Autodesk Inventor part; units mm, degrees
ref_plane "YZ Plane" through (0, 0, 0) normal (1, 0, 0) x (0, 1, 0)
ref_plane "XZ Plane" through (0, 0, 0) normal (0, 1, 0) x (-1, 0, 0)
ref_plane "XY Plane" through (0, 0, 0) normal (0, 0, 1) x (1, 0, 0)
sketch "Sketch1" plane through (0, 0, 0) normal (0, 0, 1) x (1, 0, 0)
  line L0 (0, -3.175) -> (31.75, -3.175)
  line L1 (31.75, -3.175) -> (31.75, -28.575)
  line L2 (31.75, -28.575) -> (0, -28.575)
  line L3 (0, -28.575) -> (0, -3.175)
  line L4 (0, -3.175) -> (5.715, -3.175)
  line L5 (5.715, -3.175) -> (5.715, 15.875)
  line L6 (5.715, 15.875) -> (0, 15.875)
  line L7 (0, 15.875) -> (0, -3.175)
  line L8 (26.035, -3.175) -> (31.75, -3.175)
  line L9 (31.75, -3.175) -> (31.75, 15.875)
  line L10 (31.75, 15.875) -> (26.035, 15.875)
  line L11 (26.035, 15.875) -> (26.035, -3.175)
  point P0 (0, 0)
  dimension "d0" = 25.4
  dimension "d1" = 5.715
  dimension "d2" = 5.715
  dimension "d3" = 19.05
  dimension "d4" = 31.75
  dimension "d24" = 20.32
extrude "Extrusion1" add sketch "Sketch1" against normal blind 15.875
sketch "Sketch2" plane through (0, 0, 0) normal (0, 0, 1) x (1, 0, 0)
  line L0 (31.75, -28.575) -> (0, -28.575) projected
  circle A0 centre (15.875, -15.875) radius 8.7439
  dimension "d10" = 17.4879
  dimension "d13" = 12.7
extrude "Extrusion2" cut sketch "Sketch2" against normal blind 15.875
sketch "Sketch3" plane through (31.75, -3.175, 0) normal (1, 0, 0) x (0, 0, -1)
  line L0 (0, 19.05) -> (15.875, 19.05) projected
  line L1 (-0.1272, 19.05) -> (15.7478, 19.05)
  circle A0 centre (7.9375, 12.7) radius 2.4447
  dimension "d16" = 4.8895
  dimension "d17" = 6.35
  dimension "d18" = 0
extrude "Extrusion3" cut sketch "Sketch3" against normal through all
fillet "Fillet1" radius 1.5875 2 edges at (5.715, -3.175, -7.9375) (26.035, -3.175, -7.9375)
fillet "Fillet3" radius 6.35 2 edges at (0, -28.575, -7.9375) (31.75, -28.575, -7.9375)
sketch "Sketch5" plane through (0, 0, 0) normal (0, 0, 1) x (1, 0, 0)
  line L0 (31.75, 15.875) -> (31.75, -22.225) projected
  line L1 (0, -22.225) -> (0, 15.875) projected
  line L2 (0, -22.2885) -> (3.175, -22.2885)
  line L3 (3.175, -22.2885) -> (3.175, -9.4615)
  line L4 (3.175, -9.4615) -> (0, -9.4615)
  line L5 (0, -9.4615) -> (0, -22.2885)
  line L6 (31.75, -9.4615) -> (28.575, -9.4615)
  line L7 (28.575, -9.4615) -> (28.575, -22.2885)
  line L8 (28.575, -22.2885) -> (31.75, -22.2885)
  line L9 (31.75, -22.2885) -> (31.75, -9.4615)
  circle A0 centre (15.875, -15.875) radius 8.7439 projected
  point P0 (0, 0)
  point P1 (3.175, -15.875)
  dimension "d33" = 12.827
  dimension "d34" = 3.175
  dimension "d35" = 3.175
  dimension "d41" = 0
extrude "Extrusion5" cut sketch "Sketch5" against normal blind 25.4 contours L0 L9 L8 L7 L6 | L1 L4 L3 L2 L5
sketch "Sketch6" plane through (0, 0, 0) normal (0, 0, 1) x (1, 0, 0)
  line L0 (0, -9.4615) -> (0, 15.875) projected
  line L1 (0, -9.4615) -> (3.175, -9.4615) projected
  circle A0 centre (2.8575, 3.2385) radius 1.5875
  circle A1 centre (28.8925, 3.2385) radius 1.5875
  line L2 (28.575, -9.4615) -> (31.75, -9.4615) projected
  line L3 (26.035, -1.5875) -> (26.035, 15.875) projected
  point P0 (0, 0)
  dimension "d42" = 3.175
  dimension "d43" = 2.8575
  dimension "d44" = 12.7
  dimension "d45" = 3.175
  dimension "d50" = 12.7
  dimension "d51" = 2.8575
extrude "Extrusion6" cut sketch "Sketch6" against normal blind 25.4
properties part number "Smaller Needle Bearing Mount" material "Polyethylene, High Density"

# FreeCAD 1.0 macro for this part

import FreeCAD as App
import Part
import Sketcher
from FreeCAD import Vector
Q = App.Units.Quantity


def edges_at(feature, points):
    """Names of the edges that pass closest to the given points."""
    edges = feature.Shape.Edges
    near = lambda p: min(range(len(edges)), key=lambda i: edges[i].distToShape(Part.Vertex(*p))[0])
    return sorted({f"Edge{near(p) + 1}" for p in points})

doc = App.newDocument("Part")
params = doc.addObject("Spreadsheet::Sheet", "Params")
for row, (alias, value) in enumerate([
    ("sketch1_width", "0.8 in"),
    ("sketch1_width2", "1.25 in"),
    ("sketch1_height", "0.75 in"),
    ("pad1_length", "0.625 in"),
    ("pocket1_length", "0.625 in"),
    ("fillet_radius", "0.0625 in"),
    ("fillet2_radius", "0.25 in"),
    ("sketch4_width", "0.125 in"),
    ("sketch4_height", "0.505 in"),
    ("pocket3_length", "1 in"),
    ("sketch5_diameter", "0.125 in"),
    ("pocket4_length", "1 in"),
], start=1):
    params.set(f"A{row}", alias)
    params.set(f"B{row}", "=" + value)
    params.setAlias(f"B{row}", alias)

body = doc.addObject("PartDesign::Body", "Body")

# Sketch on XY plane
sketch1 = body.newObject("Sketcher::SketchObject", "Sketch")
sketch1.AttachmentSupport = (doc.getObject("XY_Plane"), [""])
sketch1.MapMode = "FlatFace"
sketch1.addGeometry([
    Part.LineSegment(Vector(0, 16, 0), Vector(0, -29, 0)),  # 0
    Part.LineSegment(Vector(0, -29, 0), Vector(32, -29, 0)),  # 1
    Part.LineSegment(Vector(32, -29, 0), Vector(32, 16, 0)),  # 2
    Part.LineSegment(Vector(32, 16, 0), Vector(26, 16, 0)),  # 3
    Part.LineSegment(Vector(26, 16, 0), Vector(26, -3, 0)),  # 4
    Part.LineSegment(Vector(26, -3, 0), Vector(6, -3, 0)),  # 5
    Part.LineSegment(Vector(6, -3, 0), Vector(6, 16, 0)),  # 6
    Part.LineSegment(Vector(6, 16, 0), Vector(0, 16, 0)),  # 7
], False)
sketch1.addConstraint([
    Sketcher.Constraint("Coincident", 0, 2, 1, 1),
    Sketcher.Constraint("Coincident", 1, 2, 2, 1),
    Sketcher.Constraint("Coincident", 2, 2, 3, 1),
    Sketcher.Constraint("Coincident", 3, 2, 4, 1),
    Sketcher.Constraint("Coincident", 4, 2, 5, 1),
    Sketcher.Constraint("Coincident", 5, 2, 6, 1),
    Sketcher.Constraint("Coincident", 6, 2, 7, 1),
    Sketcher.Constraint("Coincident", 7, 2, 0, 1),
    Sketcher.Constraint("Vertical", 0),
    Sketcher.Constraint("Horizontal", 1),
    Sketcher.Constraint("Vertical", 2),
    Sketcher.Constraint("Horizontal", 3),
    Sketcher.Constraint("Vertical", 4),
    Sketcher.Constraint("Horizontal", 5),
    Sketcher.Constraint("Vertical", 6),
    Sketcher.Constraint("Horizontal", 7),
    Sketcher.Constraint("PointOnObject", 0, 2, -2),
    Sketcher.Constraint("Horizontal", 3, 2, 6, 2),
    Sketcher.Constraint("Equal", 3, 7),
    Sketcher.Constraint("DistanceX", 5, 2, 5, 1, Q("0.8 in")),
    Sketcher.Constraint("DistanceY", 1, 2, 4, 2, Q("1 in")),
    Sketcher.Constraint("DistanceX", 1, 1, 1, 2, Q("1.25 in")),
    Sketcher.Constraint("DistanceY", 4, 2, 4, 1, Q("0.75 in")),
    Sketcher.Constraint("DistanceY", 0, 2, -1, 1, Q("1.125 in")),
])
sketch1.setExpression("Constraints[19]", "Params.sketch1_width")
sketch1.setExpression("Constraints[21]", "Params.sketch1_width2")
sketch1.setExpression("Constraints[22]", "Params.sketch1_height")
pad1 = body.newObject("PartDesign::Pad", "Pad")
pad1.Profile = sketch1
pad1.setExpression("Length", "Params.pad1_length")
pad1.Reversed = True

# Sketch on XY plane
sketch2 = body.newObject("Sketcher::SketchObject", "Sketch001")
sketch2.AttachmentSupport = (doc.getObject("XY_Plane"), [""])
sketch2.MapMode = "FlatFace"
sketch2.addGeometry(Part.Circle(Vector(16, -16, 0), Vector(0, 0, 1), 9), False)
sketch2.addConstraint([
    Sketcher.Constraint("Diameter", 0, Q("0.6885 in")),
    Sketcher.Constraint("DistanceX", -1, 1, 0, 3, Q("0.625 in")),
    Sketcher.Constraint("DistanceY", 0, 3, -1, 1, Q("0.625 in")),
])
pocket1 = body.newObject("PartDesign::Pocket", "Pocket")
pocket1.Profile = sketch2
pocket1.setExpression("Length", "Params.pocket1_length")

# Sketch on YZ plane
sketch3 = body.newObject("Sketcher::SketchObject", "Sketch002")
sketch3.AttachmentSupport = (doc.getObject("YZ_Plane"), [""])
sketch3.MapMode = "FlatFace"
sketch3.AttachmentOffset = App.Placement(Vector(0, 0, 1.25 * 25.4), App.Rotation())
sketch3.addGeometry(Part.Circle(Vector(9.5, -7.9, 0), Vector(0, 0, 1), 2.4), False)
sketch3.addConstraint([
    Sketcher.Constraint("Diameter", 0, Q("0.1925 in")),
    Sketcher.Constraint("DistanceX", -1, 1, 0, 3, Q("0.375 in")),
    Sketcher.Constraint("DistanceY", 0, 3, -1, 1, Q("0.3125 in")),
])
pocket2 = body.newObject("PartDesign::Pocket", "Pocket001")
pocket2.Profile = sketch3
pocket2.Type = "ThroughAll"
doc.recompute()

fillet = body.newObject("PartDesign::Fillet", "Fillet")
fillet.Base = (pocket2, edges_at(pocket2, [(5.715, -3.175, -7.938), (26.035, -3.175, -7.938)]))
fillet.setExpression("Radius", "Params.fillet_radius")
doc.recompute()

fillet2 = body.newObject("PartDesign::Fillet", "Fillet001")
fillet2.Base = (fillet, edges_at(fillet, [(0, -28.575, -7.938), (31.75, -28.575, -7.938)]))
fillet2.setExpression("Radius", "Params.fillet2_radius")

# Sketch on XY plane
sketch4 = body.newObject("Sketcher::SketchObject", "Sketch003")
sketch4.AttachmentSupport = (doc.getObject("XY_Plane"), [""])
sketch4.MapMode = "FlatFace"
sketch4.addGeometry([
    Part.LineSegment(Vector(31.8, -22.3, 0), Vector(31.8, -9.5, 0)),  # 0
    Part.LineSegment(Vector(31.8, -9.5, 0), Vector(28.6, -9.5, 0)),  # 1
    Part.LineSegment(Vector(28.6, -9.5, 0), Vector(28.6, -22.3, 0)),  # 2
    Part.LineSegment(Vector(28.6, -22.3, 0), Vector(31.8, -22.3, 0)),  # 3
    Part.LineSegment(Vector(0, -9.5, 0), Vector(0, -22.3, 0)),  # 4
    Part.LineSegment(Vector(0, -22.3, 0), Vector(3.2, -22.3, 0)),  # 5
    Part.LineSegment(Vector(3.2, -22.3, 0), Vector(3.2, -9.5, 0)),  # 6
    Part.LineSegment(Vector(3.2, -9.5, 0), Vector(0, -9.5, 0)),  # 7
], False)
sketch4.addConstraint([
    Sketcher.Constraint("Coincident", 0, 2, 1, 1),
    Sketcher.Constraint("Coincident", 1, 2, 2, 1),
    Sketcher.Constraint("Coincident", 2, 2, 3, 1),
    Sketcher.Constraint("Coincident", 3, 2, 0, 1),
    Sketcher.Constraint("Coincident", 4, 2, 5, 1),
    Sketcher.Constraint("Coincident", 5, 2, 6, 1),
    Sketcher.Constraint("Coincident", 6, 2, 7, 1),
    Sketcher.Constraint("Coincident", 7, 2, 4, 1),
    Sketcher.Constraint("Vertical", 0),
    Sketcher.Constraint("Horizontal", 1),
    Sketcher.Constraint("Vertical", 2),
    Sketcher.Constraint("Horizontal", 3),
    Sketcher.Constraint("Vertical", 4),
    Sketcher.Constraint("Horizontal", 5),
    Sketcher.Constraint("Vertical", 6),
    Sketcher.Constraint("Horizontal", 7),
    Sketcher.Constraint("PointOnObject", 4, 2, -2),
    Sketcher.Constraint("Horizontal", 3, 2, 4, 2),
    Sketcher.Constraint("Horizontal", 1, 2, 6, 2),
    Sketcher.Constraint("Equal", 3, 5),
    Sketcher.Constraint("DistanceX", 1, 2, 1, 1, Q("0.125 in")),
    Sketcher.Constraint("DistanceY", 0, 1, 0, 2, Q("0.505 in")),
    Sketcher.Constraint("DistanceX", 5, 2, 2, 2, Q("1 in")),
    Sketcher.Constraint("DistanceY", 0, 2, -1, 1, Q("0.3725 in")),
])
sketch4.setExpression("Constraints[20]", "Params.sketch4_width")
sketch4.setExpression("Constraints[21]", "Params.sketch4_height")
pocket3 = body.newObject("PartDesign::Pocket", "Pocket002")
pocket3.Profile = sketch4
pocket3.setExpression("Length", "Params.pocket3_length")

# Sketch on XY plane
sketch5 = body.newObject("Sketcher::SketchObject", "Sketch004")
sketch5.AttachmentSupport = (doc.getObject("XY_Plane"), [""])
sketch5.MapMode = "FlatFace"
sketch5.addGeometry([
    Part.Circle(Vector(2.9, 3.2, 0), Vector(0, 0, 1), 1.6),
    Part.Circle(Vector(28.9, 3.2, 0), Vector(0, 0, 1), 1.6),
], False)
sketch5.addConstraint([
    Sketcher.Constraint("Equal", 0, 1),
    Sketcher.Constraint("Horizontal", 0, 3, 1, 3),
    Sketcher.Constraint("Diameter", 0, Q("0.125 in")),
    Sketcher.Constraint("DistanceX", -1, 1, 0, 3, Q("0.1125 in")),
    Sketcher.Constraint("DistanceX", 0, 3, 1, 3, Q("1.025 in")),
    Sketcher.Constraint("DistanceY", -1, 1, 0, 3, Q("0.1275 in")),
])
sketch5.setExpression("Constraints[2]", "Params.sketch5_diameter")
pocket4 = body.newObject("PartDesign::Pocket", "Pocket003")
pocket4.Profile = sketch5
pocket4.setExpression("Length", "Params.pocket4_length")

doc.recompute()
